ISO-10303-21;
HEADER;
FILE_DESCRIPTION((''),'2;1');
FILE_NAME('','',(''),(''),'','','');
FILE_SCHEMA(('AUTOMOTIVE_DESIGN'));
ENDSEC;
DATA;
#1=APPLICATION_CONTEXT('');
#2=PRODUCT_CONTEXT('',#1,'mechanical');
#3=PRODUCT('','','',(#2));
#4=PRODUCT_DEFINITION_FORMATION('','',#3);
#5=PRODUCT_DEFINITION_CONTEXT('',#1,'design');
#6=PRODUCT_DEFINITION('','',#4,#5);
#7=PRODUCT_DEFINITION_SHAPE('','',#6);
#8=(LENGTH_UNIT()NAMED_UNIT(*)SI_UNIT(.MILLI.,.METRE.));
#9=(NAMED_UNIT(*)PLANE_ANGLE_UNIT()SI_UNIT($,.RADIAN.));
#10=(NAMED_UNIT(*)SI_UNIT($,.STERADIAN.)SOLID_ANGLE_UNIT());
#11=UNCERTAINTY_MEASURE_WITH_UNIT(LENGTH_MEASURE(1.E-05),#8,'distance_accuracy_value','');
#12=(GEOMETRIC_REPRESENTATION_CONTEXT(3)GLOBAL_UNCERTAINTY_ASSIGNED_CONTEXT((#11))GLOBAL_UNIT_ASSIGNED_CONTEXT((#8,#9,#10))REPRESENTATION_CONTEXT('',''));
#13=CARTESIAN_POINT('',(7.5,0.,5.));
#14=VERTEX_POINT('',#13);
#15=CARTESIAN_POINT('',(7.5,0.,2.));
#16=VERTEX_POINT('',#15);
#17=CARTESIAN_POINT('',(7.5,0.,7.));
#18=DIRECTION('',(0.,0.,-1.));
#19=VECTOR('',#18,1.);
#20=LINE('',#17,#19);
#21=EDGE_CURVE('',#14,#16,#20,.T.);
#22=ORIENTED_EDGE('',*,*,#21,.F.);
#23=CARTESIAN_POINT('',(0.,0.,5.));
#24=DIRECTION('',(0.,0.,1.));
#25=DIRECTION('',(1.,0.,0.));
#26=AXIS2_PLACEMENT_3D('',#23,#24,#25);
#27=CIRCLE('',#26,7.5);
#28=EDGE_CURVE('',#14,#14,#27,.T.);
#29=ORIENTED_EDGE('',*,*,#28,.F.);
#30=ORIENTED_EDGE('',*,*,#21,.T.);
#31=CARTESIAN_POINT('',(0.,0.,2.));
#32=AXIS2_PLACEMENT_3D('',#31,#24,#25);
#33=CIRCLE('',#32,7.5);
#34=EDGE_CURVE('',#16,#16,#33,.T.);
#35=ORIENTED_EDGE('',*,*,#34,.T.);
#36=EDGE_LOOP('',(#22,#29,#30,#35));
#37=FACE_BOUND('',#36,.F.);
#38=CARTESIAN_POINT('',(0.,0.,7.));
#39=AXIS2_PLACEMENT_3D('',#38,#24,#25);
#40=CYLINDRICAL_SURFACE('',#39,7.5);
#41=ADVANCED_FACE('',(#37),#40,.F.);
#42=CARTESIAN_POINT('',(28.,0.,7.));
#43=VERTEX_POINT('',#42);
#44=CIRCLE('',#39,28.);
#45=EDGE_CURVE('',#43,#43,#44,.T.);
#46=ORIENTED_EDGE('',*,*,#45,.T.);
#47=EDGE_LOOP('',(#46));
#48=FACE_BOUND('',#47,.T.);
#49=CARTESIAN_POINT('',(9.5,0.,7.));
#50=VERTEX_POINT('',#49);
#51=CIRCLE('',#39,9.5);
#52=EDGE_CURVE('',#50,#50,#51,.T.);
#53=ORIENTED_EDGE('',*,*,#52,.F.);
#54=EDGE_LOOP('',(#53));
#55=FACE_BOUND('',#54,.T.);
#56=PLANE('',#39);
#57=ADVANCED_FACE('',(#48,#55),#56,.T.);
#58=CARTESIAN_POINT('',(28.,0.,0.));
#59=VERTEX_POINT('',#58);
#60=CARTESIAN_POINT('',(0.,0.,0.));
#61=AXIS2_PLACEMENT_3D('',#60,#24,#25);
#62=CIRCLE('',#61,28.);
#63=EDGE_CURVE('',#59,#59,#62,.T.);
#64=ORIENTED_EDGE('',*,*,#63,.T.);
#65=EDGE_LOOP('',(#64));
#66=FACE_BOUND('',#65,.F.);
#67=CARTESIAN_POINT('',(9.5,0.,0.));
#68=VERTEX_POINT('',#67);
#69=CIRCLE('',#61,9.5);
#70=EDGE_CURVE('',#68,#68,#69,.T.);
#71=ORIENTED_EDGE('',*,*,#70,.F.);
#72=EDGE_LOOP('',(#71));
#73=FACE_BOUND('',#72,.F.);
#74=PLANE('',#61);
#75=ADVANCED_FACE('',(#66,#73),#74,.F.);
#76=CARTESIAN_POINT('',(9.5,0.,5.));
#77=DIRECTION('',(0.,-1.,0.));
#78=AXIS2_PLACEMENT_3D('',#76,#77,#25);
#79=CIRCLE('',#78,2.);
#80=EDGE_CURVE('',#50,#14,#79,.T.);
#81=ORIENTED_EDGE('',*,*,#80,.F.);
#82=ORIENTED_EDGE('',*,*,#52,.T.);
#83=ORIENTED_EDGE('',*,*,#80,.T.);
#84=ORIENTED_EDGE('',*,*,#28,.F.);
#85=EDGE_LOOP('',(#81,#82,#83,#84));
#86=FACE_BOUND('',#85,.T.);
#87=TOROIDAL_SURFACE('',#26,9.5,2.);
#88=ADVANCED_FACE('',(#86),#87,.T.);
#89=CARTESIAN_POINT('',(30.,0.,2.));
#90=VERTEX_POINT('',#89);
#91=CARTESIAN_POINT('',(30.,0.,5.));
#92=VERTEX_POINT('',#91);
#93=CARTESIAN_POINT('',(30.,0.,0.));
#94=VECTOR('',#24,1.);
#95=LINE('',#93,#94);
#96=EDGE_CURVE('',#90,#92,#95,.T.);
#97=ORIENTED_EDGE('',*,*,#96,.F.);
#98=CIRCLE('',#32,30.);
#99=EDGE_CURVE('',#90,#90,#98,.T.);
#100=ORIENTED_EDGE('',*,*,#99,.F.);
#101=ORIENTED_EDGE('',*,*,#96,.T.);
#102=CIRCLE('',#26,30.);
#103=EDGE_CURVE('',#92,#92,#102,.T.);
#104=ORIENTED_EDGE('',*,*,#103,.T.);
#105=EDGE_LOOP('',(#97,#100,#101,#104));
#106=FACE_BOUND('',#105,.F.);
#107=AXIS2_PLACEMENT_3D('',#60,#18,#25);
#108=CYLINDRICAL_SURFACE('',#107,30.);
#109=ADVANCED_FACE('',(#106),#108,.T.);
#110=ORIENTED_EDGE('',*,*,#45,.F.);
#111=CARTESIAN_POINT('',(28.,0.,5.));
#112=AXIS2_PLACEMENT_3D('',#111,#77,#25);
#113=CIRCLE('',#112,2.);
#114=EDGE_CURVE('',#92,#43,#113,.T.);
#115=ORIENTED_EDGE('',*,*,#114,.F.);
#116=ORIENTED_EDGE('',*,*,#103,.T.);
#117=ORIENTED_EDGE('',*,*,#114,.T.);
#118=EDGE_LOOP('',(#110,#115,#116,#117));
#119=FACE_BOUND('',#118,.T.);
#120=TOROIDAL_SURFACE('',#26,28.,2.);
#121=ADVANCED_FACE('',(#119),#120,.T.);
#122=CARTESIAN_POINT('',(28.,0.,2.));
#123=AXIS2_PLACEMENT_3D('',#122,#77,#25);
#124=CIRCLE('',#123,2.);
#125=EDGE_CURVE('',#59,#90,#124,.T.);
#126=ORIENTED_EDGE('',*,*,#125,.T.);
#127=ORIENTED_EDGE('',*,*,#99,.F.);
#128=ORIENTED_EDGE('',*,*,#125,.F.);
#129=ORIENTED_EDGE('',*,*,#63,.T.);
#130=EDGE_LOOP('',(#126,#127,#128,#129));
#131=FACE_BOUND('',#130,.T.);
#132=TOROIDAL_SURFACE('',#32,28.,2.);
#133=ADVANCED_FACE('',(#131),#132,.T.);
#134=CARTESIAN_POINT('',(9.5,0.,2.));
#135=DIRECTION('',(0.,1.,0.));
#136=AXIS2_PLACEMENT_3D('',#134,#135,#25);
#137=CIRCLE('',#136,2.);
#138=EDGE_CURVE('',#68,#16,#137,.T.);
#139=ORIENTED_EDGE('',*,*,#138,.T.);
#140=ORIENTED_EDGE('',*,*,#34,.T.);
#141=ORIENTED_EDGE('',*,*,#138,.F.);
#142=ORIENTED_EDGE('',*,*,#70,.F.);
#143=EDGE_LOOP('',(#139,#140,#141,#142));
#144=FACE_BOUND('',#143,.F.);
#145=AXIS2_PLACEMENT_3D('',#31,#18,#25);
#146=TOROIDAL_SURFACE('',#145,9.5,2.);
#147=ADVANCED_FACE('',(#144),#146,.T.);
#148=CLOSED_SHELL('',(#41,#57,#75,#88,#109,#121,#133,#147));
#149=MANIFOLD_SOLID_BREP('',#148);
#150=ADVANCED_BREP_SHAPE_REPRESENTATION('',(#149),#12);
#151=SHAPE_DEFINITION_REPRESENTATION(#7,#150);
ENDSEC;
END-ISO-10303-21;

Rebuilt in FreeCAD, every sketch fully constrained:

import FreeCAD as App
import Part
import Sketcher
from FreeCAD import Vector


def edges_at(feature, points):
    """Names of the edges that pass closest to the given points."""
    edges = feature.Shape.Edges
    near = lambda p: min(range(len(edges)), key=lambda i: edges[i].distToShape(Part.Vertex(*p))[0])
    return sorted({f"Edge{near(p) + 1}" for p in points})

doc = App.newDocument("Part")
body = doc.addObject("PartDesign::Body", "Body")

sketch1 = body.newObject("Sketcher::SketchObject", "Sketch")
sketch1.AttachmentSupport = (doc.getObject("XY_Plane"), [""])
sketch1.MapMode = "FlatFace"
sketch1.addGeometry(Part.Circle(Vector(0, 0, 0), Vector(0, 0, 1), 30), False)
sketch1.addConstraint([
    Sketcher.Constraint("Coincident", 0, 3, -1, 1),
    Sketcher.Constraint("Diameter", 0, 60.0),
])
pad1 = body.newObject("PartDesign::Pad", "Pad")
pad1.Profile = sketch1
pad1.Length = 7

sketch2 = body.newObject("Sketcher::SketchObject", "Sketch001")
sketch2.AttachmentSupport = (doc.getObject("XY_Plane"), [""])
sketch2.MapMode = "FlatFace"
sketch2.AttachmentOffset = App.Placement(Vector(0, 0, 7), App.Rotation())
sketch2.addGeometry(Part.Circle(Vector(0, 0, 0), Vector(0, 0, 1), 7.5), False)
sketch2.addConstraint([
    Sketcher.Constraint("Coincident", 0, 3, -1, 1),
    Sketcher.Constraint("Diameter", 0, 15.0),
])
pocket1 = body.newObject("PartDesign::Pocket", "Pocket")
pocket1.Profile = sketch2
pocket1.Length = 25
doc.recompute()

fillet = body.newObject("PartDesign::Fillet", "Fillet")
fillet.Base = (pocket1, edges_at(pocket1, [(-7.5, 0, 7), (-7.5, 0, 0)]))
fillet.Radius = 2
doc.recompute()

fillet2 = body.newObject("PartDesign::Fillet", "Fillet001")
fillet2.Base = (fillet, edges_at(fillet, [(-30, 0, 7), (-30, 0, 0)]))
fillet2.Radius = 2

doc.recompute()
